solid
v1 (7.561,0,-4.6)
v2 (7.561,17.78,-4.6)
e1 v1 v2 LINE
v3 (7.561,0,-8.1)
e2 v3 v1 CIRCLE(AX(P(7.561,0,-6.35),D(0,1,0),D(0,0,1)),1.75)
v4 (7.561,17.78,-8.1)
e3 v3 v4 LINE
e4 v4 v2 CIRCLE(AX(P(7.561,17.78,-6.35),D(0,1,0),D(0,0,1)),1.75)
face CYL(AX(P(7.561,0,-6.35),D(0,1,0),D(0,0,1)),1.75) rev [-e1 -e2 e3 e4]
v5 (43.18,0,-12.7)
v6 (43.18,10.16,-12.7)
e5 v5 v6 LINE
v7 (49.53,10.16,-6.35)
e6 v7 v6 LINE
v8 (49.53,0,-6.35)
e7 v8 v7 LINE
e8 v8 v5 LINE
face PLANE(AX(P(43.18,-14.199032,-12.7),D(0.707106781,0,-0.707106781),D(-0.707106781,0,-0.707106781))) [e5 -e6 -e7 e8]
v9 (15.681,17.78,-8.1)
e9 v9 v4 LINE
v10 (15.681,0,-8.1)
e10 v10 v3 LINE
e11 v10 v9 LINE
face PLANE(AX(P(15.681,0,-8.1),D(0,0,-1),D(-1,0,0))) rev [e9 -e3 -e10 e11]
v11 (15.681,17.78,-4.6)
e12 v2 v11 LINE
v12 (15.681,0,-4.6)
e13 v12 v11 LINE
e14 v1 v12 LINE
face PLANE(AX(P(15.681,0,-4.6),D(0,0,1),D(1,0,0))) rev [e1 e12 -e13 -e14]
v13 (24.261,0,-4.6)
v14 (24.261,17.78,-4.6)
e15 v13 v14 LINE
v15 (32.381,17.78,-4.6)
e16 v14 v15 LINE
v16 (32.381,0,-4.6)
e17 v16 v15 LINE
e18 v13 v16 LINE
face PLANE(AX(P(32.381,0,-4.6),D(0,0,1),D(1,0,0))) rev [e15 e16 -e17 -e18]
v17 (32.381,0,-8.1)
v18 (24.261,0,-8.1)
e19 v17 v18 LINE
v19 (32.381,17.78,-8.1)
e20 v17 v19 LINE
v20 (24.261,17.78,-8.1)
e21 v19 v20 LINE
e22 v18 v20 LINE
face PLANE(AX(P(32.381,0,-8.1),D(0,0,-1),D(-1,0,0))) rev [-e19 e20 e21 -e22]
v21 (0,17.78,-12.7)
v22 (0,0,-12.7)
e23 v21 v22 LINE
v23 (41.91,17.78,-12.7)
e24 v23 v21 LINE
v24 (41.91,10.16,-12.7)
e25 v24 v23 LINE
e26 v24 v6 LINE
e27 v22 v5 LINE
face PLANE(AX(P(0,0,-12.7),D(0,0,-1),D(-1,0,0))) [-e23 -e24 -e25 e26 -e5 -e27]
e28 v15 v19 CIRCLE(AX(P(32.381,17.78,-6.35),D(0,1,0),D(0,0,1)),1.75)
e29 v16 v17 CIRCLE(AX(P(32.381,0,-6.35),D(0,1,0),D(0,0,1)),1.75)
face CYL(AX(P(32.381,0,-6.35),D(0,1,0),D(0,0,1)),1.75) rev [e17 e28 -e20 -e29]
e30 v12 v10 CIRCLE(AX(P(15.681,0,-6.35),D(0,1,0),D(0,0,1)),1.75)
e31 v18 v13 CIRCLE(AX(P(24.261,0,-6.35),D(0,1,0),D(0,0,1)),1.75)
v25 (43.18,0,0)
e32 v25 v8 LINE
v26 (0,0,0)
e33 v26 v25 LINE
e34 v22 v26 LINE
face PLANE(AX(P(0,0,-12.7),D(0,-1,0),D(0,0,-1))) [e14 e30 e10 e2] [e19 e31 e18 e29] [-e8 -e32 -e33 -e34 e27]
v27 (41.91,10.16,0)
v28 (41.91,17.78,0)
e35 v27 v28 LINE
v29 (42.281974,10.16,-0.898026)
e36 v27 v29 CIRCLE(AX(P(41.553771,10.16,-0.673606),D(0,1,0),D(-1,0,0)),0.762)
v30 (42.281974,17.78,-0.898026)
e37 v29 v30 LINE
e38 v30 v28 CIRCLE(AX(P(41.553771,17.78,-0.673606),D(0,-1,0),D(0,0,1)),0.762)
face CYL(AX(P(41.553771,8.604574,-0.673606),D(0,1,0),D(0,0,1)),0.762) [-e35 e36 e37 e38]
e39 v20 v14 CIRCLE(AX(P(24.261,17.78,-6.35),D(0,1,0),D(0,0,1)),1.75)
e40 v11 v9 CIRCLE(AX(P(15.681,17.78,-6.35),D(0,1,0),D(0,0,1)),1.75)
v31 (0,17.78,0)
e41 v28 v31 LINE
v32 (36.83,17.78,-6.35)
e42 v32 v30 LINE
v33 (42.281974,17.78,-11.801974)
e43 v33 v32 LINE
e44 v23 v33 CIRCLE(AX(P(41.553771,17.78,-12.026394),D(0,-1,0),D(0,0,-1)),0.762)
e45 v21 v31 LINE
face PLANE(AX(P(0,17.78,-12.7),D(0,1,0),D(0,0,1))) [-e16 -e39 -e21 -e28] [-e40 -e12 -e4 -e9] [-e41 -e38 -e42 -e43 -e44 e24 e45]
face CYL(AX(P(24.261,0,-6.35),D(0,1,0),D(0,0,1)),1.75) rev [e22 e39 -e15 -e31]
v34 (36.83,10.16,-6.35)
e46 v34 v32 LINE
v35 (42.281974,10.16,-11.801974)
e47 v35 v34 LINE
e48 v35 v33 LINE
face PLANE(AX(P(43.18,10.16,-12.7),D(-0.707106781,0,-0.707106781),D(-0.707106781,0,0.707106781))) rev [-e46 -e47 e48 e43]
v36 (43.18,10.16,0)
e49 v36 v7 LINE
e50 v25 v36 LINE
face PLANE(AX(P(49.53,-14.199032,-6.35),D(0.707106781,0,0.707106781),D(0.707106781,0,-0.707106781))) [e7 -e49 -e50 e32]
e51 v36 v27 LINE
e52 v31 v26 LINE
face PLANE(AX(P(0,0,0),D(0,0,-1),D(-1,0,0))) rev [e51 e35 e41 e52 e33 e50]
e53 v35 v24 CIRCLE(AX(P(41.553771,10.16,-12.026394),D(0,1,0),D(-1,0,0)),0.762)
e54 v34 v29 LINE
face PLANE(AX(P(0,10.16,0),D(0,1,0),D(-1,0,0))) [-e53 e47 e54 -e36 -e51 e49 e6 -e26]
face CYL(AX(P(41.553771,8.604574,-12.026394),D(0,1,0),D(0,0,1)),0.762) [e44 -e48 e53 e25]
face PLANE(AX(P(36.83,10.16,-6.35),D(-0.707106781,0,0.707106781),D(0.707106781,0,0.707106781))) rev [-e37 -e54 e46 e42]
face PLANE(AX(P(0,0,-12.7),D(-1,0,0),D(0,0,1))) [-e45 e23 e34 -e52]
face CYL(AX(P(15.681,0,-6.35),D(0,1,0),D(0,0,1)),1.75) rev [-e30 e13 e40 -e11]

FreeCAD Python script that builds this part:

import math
import FreeCAD as App
import Part
import Sketcher
from FreeCAD import Vector
Q = App.Units.Quantity


def add_polygon(sketch, points):
    """Adds a closed chain of lines whose ends are joined by coincident constraints."""
    first, n = sketch.GeometryCount, len(points)
    for a, b in zip(points, points[1:] + points[:1]):
        sketch.addGeometry(Part.LineSegment(App.Vector(*a, 0), App.Vector(*b, 0)), False)
    for i in range(n):
        sketch.addConstraint(Sketcher.Constraint("Coincident", first + i, 2, first + (i + 1) % n, 1))

doc = App.newDocument("Part")
params = doc.addObject("Spreadsheet::Sheet", "Params")
for row, (alias, value) in enumerate([
    ("sketch1_width", "1.7 in"),
    ("sketch1_height", "0.7 in"),
    ("pad1_length", "0.5 in"),
    ("sketch2_height", "0.5 in"),
    ("pocket1_length", "0.3 in"),
    ("sketch4_height", "0.5 in"),
    ("pad2_length", "0.4 in"),
    ("sketch5_radius", "0.03 in"),
    ("sketch5_width", "0.05 in"),
    ("sketch5_length", "0.05 in"),
    ("pocket3_length", "0.3 in"),
], start=1):
    params.set(f"A{row}", alias)
    params.set(f"B{row}", "=" + value)
    params.setAlias(f"B{row}", alias)

body = doc.addObject("PartDesign::Body", "Body")

# Sketch on XY plane
sketch1 = doc.addObject("Sketcher::SketchObject", "Sketch")
body.addObject(sketch1)
sketch1.AttachmentSupport = (doc.XY_Plane, [""])
sketch1.MapMode = "FlatFace"
add_polygon(sketch1, [(0, 18), (0, 0), (43, 0), (43, 18)])  # lines 0-3
sketch1.addConstraint([
    Sketcher.Constraint("Vertical", 0),
    Sketcher.Constraint("Horizontal", 1),
    Sketcher.Constraint("Vertical", 2),
    Sketcher.Constraint("Horizontal", 3),
    Sketcher.Constraint("Coincident", 0, 2, -1, 1),
    Sketcher.Constraint("DistanceX", 1, 1, 1, 2, Q("1.7 in")),
    Sketcher.Constraint("DistanceY", 0, 2, 0, 1, Q("0.7 in")),
])
sketch1.setExpression("Constraints[9]", "Params.sketch1_width")
sketch1.setExpression("Constraints[10]", "Params.sketch1_height")
pad1 = doc.addObject("PartDesign::Pad", "Pad")
body.addObject(pad1)
pad1.Profile = sketch1
pad1.setExpression("Length", "Params.pad1_length")
pad1.Reversed = True

# Sketch on XZ plane
sketch2 = doc.addObject("Sketcher::SketchObject", "Sketch001")
body.addObject(sketch2)
sketch2.AttachmentSupport = (doc.XZ_Plane, [""])
sketch2.MapMode = "FlatFace"
sketch2.AttachmentOffset = App.Placement(Vector(0, 0, -0.7 * 25.4), App.Rotation())
add_polygon(sketch2, [(43, -13), (37, -6), (43, 0)])  # lines 0-2
sketch2.addConstraint([
    Sketcher.Constraint("Vertical", 2),
    Sketcher.Constraint("PointOnObject", 1, 2, -1),
    Sketcher.Constraint("Perpendicular", 0, 1),
    Sketcher.Constraint("Equal", 0, 1),
    Sketcher.Constraint("DistanceY", 2, 2, 2, 1, Q("0.5 in")),
    Sketcher.Constraint("DistanceX", -1, 1, 1, 2, Q("1.7 in")),
])
sketch2.setExpression("Constraints[7]", "Params.sketch2_height")
pocket1 = doc.addObject("PartDesign::Pocket", "Pocket")
body.addObject(pocket1)
pocket1.Profile = sketch2
pocket1.setExpression("Length", "Params.pocket1_length")
pocket1.Reversed = True

# Sketch on XZ plane
sketch3 = doc.addObject("Sketcher::SketchObject", "Sketch002")
body.addObject(sketch3)
sketch3.AttachmentSupport = (doc.XZ_Plane, [""])
sketch3.MapMode = "FlatFace"
sketch3.AttachmentOffset = App.Placement(Vector(0, 0, -0.7 * 25.4), App.Rotation())
sketch3.addGeometry([
    Part.LineSegment(Vector(24.3, -4.6, 0), Vector(32.4, -4.6, 0)),  # 0
    Part.ArcOfCircle(Part.Circle(Vector(32.4, -6.3, 0), Vector(0, 0, 1), 1.8), math.radians(-90), math.radians(90)),  # 1
    Part.LineSegment(Vector(32.4, -8.1, 0), Vector(24.3, -8.1, 0)),  # 2
    Part.ArcOfCircle(Part.Circle(Vector(24.3, -6.3, 0), Vector(0, 0, 1), 1.8), math.radians(90), math.radians(270)),  # 3
    Part.LineSegment(Vector(7.6, -4.6, 0), Vector(15.7, -4.6, 0)),  # 4
    Part.ArcOfCircle(Part.Circle(Vector(15.7, -6.3, 0), Vector(0, 0, 1), 1.8), math.radians(-90), math.radians(90)),  # 5
    Part.LineSegment(Vector(15.7, -8.1, 0), Vector(7.6, -8.1, 0)),  # 6
    Part.ArcOfCircle(Part.Circle(Vector(7.6, -6.3, 0), Vector(0, 0, 1), 1.8), math.radians(90), math.radians(270)),  # 7
], False)
sketch3.addConstraint([
    Sketcher.Constraint("Tangent", 0, 2, 1, 2),
    Sketcher.Constraint("Tangent", 1, 1, 2, 1),
    Sketcher.Constraint("Tangent", 2, 2, 3, 2),
    Sketcher.Constraint("Tangent", 3, 1, 0, 1),
    Sketcher.Constraint("Tangent", 4, 2, 5, 2),
    Sketcher.Constraint("Tangent", 5, 1, 6, 1),
    Sketcher.Constraint("Tangent", 6, 2, 7, 2),
    Sketcher.Constraint("Tangent", 7, 1, 4, 1),
    Sketcher.Constraint("Horizontal", 0),
    Sketcher.Constraint("Horizontal", 2),
    Sketcher.Constraint("Horizontal", 4),
    Sketcher.Constraint("Horizontal", 6),
    Sketcher.Constraint("Equal", 3, 5),
    Sketcher.Constraint("Horizontal", 3, 3, 5, 3),
    Sketcher.Constraint("Equal", 2, 4),
    Sketcher.Constraint("DistanceY", 1, 3, -1, 1, Q("0.25 in")),
    Sketcher.Constraint("Radius", 1, 1.75),
    Sketcher.Constraint("DistanceX", 0, 1, 0, 2, 8.12),
    Sketcher.Constraint("DistanceX", -1, 1, 1, 3, 32.381),
    Sketcher.Constraint("DistanceX", -1, 1, 5, 3, 15.681),
])
pocket2 = doc.addObject("PartDesign::Pocket", "Pocket001")
body.addObject(pocket2)
pocket2.Profile = sketch3
pocket2.Type = "ThroughAll"
pocket2.Reversed = True

# Sketch on XZ plane
sketch4 = doc.addObject("Sketcher::SketchObject", "Sketch003")
body.addObject(sketch4)
sketch4.AttachmentSupport = (doc.XZ_Plane, [""])
sketch4.MapMode = "FlatFace"
sketch4.AttachmentOffset = App.Placement(Vector(0, 0, -0.4 * 25.4), App.Rotation())
add_polygon(sketch4, [(50, -6), (43, -13), (43, 0)])  # lines 0-2
sketch4.addConstraint([
    Sketcher.Constraint("Vertical", 1),
    Sketcher.Constraint("PointOnObject", 1, 2, -1),
    Sketcher.Constraint("Perpendicular", 0, 2),
    Sketcher.Constraint("Equal", 0, 2),
    Sketcher.Constraint("DistanceY", 1, 1, 1, 2, Q("0.5 in")),
    Sketcher.Constraint("DistanceX", -1, 1, 0, 2, Q("1.7 in")),
])
sketch4.setExpression("Constraints[7]", "Params.sketch4_height")
pad2 = doc.addObject("PartDesign::Pad", "Pad001")
body.addObject(pad2)
pad2.Profile = sketch4
pad2.setExpression("Length", "Params.pad2_length")

# Sketch on XZ plane
sketch5 = doc.addObject("Sketcher::SketchObject", "Sketch004")
body.addObject(sketch5)
sketch5.AttachmentSupport = (doc.XZ_Plane, [""])
sketch5.MapMode = "FlatFace"
sketch5.AttachmentOffset = App.Placement(Vector(0, 0, -0.7 * 25.4), App.Rotation())
sketch5.addGeometry([
    Part.LineSegment(Vector(43.2, -12.7, 0), Vector(41.9, -12.7, 0)),  # 0
    Part.ArcOfCircle(Part.Circle(Vector(41.6, -12, 0), Vector(0, 0, 1), 0.8), math.radians(-62), math.radians(17)),  # 1
    Part.LineSegment(Vector(42.3, -11.8, 0), Vector(43.2, -12.7, 0)),  # 2
    Part.LineSegment(Vector(41.9, 0, 0), Vector(43.2, 0, 0)),  # 3
    Part.LineSegment(Vector(43.2, 0, 0), Vector(42.3, -0.9, 0)),  # 4
    Part.ArcOfCircle(Part.Circle(Vector(41.6, -0.7, 0), Vector(0, 0, 1), 0.8), math.radians(-17), math.radians(62)),  # 5
], False)
sketch5.addConstraint([
    Sketcher.Constraint("Coincident", 0, 2, 1, 1),
    Sketcher.Constraint("Coincident", 1, 2, 2, 1),
    Sketcher.Constraint("Coincident", 2, 2, 0, 1),
    Sketcher.Constraint("Coincident", 3, 2, 4, 1),
    Sketcher.Constraint("Coincident", 4, 2, 5, 1),
    Sketcher.Constraint("Coincident", 5, 2, 3, 1),
    Sketcher.Constraint("Horizontal", 0),
    Sketcher.Constraint("Horizontal", 3),
    Sketcher.Constraint("Equal", 1, 5),
    Sketcher.Constraint("PointOnObject", 3, 2, -1),
    Sketcher.Constraint("Perpendicular", 2, 4),
    Sketcher.Constraint("Vertical", 1, 3, 5, 3),
    Sketcher.Constraint("Vertical", 2, 2, 3, 2),
    Sketcher.Constraint("Vertical", 1, 2, 4, 2),
    Sketcher.Constraint("Vertical", 0, 2, 5, 2),
    Sketcher.Constraint("Radius", 1, Q("0.03 in")),
    Sketcher.Constraint("DistanceX", 0, 2, 0, 1, Q("0.05 in")),
    Sketcher.Constraint("DistanceY", 0, 2, -1, 1, Q("0.5 in")),
    Sketcher.Constraint("DistanceX", -1, 1, 2, 2, Q("1.7 in")),
    Sketcher.Constraint("Distance", 2, Q("0.05 in")),
])
sketch5.setExpression("Constraints[15]", "Params.sketch5_radius")
sketch5.setExpression("Constraints[16]", "Params.sketch5_width")
sketch5.setExpression("Constraints[19]", "Params.sketch5_length")
pocket3 = doc.addObject("PartDesign::Pocket", "Pocket002")
body.addObject(pocket3)
pocket3.Profile = sketch5
pocket3.setExpression("Length", "Params.pocket3_length")
pocket3.Reversed = True

doc.recompute()
